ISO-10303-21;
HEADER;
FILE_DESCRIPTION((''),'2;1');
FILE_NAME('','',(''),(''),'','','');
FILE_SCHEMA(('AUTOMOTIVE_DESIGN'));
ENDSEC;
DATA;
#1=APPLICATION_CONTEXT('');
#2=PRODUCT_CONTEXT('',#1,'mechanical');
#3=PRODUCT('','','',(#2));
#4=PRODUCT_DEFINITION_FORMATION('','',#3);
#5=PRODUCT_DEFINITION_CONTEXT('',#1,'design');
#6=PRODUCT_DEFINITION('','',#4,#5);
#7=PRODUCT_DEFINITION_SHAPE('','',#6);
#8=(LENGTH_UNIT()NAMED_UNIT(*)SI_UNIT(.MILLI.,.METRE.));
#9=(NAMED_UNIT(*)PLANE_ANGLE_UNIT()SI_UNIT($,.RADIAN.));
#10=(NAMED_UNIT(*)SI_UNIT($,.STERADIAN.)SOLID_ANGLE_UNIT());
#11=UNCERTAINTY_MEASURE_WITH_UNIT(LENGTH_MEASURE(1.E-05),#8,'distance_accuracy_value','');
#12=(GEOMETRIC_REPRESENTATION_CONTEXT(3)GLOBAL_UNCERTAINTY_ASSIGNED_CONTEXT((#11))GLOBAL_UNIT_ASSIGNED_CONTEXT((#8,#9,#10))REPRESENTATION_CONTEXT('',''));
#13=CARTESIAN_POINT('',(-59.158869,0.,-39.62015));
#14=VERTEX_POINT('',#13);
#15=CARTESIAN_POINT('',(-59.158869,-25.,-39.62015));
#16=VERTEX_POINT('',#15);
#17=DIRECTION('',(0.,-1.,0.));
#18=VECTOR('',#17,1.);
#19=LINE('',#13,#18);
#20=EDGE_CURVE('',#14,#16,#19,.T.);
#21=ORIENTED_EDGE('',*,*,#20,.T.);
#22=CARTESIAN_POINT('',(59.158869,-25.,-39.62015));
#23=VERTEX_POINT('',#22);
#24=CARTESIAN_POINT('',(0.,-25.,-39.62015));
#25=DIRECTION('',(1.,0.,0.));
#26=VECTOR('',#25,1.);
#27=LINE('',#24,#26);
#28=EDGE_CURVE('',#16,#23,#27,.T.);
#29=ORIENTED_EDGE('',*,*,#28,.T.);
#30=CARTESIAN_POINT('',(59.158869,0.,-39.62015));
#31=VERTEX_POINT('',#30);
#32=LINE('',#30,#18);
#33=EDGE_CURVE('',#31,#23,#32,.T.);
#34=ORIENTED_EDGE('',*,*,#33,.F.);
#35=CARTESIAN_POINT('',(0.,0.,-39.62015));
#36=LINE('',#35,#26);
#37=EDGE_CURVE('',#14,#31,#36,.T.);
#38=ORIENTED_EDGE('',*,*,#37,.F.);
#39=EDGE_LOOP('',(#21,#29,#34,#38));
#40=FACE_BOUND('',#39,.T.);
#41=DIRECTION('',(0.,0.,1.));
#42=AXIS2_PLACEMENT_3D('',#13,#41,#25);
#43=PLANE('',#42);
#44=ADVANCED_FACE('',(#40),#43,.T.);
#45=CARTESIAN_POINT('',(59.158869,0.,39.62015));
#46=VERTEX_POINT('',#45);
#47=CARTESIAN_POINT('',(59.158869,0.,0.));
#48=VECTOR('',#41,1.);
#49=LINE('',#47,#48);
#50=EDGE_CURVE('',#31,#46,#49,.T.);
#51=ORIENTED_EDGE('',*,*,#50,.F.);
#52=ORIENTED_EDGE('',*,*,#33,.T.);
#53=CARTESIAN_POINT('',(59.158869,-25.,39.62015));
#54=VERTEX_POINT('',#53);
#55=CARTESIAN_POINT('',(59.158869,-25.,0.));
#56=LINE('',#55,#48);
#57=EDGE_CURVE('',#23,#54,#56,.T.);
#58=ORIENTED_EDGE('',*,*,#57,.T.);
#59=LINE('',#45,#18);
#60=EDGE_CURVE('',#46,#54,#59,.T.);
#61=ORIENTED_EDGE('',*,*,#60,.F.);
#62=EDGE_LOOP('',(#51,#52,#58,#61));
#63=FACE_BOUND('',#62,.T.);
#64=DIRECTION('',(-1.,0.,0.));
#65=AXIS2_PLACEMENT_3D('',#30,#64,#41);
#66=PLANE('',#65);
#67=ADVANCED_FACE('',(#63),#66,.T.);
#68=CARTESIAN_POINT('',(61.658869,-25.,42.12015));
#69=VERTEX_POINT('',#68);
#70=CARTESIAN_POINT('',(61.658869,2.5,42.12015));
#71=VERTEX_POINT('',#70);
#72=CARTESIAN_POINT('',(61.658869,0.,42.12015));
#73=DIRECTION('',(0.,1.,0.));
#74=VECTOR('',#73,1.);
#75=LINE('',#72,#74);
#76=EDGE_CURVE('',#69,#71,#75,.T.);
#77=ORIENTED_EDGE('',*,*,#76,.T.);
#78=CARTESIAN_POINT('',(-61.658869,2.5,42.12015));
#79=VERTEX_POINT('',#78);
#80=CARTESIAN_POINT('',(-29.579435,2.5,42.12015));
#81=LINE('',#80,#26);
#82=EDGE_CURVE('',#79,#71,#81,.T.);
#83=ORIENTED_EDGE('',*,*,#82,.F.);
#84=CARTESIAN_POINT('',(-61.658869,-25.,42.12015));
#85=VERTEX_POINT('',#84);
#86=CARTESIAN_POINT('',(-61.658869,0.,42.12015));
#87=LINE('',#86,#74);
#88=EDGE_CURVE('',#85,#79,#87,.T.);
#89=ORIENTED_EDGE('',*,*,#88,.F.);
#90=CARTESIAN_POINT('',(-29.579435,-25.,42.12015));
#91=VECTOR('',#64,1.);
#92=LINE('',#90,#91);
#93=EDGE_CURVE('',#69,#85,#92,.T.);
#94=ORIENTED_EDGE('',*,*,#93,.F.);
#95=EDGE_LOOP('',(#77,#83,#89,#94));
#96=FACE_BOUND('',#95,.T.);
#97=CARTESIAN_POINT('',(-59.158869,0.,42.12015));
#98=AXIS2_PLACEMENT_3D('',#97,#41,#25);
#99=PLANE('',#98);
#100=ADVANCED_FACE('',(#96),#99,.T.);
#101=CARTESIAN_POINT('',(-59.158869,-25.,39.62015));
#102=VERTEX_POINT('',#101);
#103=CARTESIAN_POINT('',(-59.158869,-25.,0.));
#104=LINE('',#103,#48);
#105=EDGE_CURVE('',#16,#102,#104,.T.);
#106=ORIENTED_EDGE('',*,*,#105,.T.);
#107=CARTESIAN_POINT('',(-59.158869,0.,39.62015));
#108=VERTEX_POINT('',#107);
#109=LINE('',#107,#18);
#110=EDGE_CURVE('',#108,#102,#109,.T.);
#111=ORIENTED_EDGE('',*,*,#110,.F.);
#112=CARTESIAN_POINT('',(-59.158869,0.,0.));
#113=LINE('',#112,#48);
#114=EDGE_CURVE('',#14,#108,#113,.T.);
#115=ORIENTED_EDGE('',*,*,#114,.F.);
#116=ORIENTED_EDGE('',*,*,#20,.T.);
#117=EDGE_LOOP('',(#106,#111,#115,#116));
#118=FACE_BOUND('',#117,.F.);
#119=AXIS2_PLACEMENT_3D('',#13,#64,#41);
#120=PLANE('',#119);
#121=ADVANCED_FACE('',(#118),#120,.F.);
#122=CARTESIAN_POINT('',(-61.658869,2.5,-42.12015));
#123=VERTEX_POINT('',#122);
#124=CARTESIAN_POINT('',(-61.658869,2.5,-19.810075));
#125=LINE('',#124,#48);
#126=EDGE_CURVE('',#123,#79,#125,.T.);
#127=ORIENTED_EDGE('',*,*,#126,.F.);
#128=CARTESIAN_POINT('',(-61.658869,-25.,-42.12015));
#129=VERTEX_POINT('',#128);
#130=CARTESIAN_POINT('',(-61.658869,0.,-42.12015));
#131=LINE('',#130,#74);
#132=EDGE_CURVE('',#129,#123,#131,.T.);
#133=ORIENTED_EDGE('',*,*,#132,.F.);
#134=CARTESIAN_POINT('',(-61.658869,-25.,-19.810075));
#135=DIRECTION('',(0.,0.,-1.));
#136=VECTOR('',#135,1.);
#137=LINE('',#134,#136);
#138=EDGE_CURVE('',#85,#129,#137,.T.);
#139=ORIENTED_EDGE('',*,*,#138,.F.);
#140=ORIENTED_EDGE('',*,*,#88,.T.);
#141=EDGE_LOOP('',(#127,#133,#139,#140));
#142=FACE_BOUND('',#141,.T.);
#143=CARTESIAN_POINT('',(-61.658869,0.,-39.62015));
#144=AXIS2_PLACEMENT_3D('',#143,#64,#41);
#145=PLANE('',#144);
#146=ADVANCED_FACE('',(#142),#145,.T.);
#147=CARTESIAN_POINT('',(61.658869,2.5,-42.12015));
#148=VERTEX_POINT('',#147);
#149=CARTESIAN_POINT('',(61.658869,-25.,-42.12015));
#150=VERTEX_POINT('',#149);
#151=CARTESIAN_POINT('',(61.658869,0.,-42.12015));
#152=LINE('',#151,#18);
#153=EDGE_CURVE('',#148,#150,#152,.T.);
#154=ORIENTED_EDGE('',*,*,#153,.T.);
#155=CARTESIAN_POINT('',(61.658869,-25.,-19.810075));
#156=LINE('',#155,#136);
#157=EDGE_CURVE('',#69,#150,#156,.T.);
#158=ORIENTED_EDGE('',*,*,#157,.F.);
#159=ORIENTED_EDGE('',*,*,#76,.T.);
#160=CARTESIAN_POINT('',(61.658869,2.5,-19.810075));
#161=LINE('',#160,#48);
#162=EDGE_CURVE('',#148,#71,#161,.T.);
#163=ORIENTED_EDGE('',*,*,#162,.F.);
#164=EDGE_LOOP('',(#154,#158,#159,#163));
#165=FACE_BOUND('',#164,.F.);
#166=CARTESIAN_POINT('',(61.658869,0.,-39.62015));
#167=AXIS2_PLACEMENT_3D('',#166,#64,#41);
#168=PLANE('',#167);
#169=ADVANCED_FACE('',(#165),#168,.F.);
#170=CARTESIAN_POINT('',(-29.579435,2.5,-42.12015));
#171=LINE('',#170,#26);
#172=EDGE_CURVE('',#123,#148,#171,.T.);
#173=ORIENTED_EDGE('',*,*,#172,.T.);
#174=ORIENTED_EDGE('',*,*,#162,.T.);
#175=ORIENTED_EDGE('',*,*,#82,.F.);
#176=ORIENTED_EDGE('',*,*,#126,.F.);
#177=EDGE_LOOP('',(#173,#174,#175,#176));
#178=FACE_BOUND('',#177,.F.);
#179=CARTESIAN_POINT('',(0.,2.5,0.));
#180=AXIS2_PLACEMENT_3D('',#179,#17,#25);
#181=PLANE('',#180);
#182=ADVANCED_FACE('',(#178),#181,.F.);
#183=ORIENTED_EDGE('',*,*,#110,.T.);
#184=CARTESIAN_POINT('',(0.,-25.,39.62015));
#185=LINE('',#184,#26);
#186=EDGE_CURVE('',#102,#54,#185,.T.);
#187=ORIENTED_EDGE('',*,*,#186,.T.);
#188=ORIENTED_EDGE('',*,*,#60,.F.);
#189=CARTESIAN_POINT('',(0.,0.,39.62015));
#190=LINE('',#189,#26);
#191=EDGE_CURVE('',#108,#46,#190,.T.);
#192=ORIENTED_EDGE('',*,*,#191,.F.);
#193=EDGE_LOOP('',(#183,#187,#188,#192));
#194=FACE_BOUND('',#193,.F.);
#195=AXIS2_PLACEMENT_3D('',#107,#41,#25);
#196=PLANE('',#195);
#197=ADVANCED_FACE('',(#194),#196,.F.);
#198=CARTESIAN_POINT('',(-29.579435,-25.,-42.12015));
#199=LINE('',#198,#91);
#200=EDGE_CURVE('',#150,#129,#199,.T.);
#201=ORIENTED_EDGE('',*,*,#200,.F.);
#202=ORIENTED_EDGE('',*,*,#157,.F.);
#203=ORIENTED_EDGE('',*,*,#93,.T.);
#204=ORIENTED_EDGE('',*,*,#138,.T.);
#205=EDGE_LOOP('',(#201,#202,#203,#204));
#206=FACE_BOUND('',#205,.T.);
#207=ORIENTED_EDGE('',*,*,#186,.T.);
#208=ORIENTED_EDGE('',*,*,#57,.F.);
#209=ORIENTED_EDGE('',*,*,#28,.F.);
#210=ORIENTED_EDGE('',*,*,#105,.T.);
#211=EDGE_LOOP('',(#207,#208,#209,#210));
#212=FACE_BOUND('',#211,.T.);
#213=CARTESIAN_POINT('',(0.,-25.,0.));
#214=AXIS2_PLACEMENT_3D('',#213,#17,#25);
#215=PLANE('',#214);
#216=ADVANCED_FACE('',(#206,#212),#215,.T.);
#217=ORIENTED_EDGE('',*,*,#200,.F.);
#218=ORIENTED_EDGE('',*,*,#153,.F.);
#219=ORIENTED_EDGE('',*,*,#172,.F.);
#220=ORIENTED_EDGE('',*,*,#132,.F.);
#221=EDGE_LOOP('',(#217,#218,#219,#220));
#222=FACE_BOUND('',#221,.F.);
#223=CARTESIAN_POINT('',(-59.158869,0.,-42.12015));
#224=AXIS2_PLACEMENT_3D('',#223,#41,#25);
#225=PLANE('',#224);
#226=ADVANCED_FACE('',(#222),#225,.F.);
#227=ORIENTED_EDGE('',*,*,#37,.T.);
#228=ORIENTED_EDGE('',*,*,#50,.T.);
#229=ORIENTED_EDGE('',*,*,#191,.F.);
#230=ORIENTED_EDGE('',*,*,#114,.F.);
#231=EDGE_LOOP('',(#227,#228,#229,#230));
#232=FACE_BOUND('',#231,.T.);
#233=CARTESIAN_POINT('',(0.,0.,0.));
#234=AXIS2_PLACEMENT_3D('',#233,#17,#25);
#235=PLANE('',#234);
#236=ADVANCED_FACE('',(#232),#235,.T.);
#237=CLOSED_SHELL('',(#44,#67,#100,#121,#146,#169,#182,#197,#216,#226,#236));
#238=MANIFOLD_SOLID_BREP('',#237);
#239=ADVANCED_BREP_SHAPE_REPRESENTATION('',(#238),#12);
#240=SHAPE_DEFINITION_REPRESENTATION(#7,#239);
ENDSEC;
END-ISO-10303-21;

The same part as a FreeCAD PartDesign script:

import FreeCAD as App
import Part
import Sketcher

V = App.Vector
Q = App.Units.Quantity


def faces_at(feature, points):
    """Names of the faces that lie closest to the given points."""
    faces = feature.Shape.Faces
    near = lambda p: min(range(len(faces)), key=lambda i: faces[i].distToShape(Part.Vertex(*p))[0])
    return sorted({f"Face{near(p) + 1}" for p in points})


def add_polygon(sketch, points):
    """Adds a closed chain of lines whose ends are joined by coincident constraints."""
    first, n = sketch.GeometryCount, len(points)
    for a, b in zip(points, points[1:] + points[:1]):
        sketch.addGeometry(Part.LineSegment(App.Vector(*a, 0), App.Vector(*b, 0)), False)
    for i in range(n):
        sketch.addConstraint(Sketcher.Constraint("Coincident", first + i, 2, first + (i + 1) % n, 1))

doc = App.newDocument("Part")
body = doc.addObject("PartDesign::Body", "Body")

# Sketch on XZ plane
sketch1 = body.newObject("Sketcher::SketchObject", "Sketch")
sketch1.AttachmentSupport = (doc.getObject("XZ_Plane"), [""])
sketch1.MapMode = "FlatFace"
add_polygon(sketch1, [(-59, 40), (-59, -40), (59, -40), (59, 40)])  # lines 0-3
sketch1.addConstraint([
    Sketcher.Constraint("Vertical", 0),
    Sketcher.Constraint("Horizontal", 1),
    Sketcher.Constraint("Vertical", 2),
    Sketcher.Constraint("Horizontal", 3),
    Sketcher.Constraint("Symmetric", 0, 2, 2, 2, -1, 1),
    Sketcher.Constraint("DistanceY", 0, 2, 0, 1, Q("79.2403 mm")),
    Sketcher.Constraint("DistanceX", 1, 1, 1, 2, Q("118.317738 mm")),
])
pad1 = body.newObject("PartDesign::Pad", "Pad")
pad1.Profile = sketch1
pad1.Length = 25
doc.recompute()

thickness = body.newObject("PartDesign::Thickness", "Thickness")
thickness.Base = (pad1, faces_at(pad1, [(0, -25, 0)]))
thickness.Value = 2.5
thickness.Reversed = False
thickness.Join = "Intersection"

doc.recompute()
